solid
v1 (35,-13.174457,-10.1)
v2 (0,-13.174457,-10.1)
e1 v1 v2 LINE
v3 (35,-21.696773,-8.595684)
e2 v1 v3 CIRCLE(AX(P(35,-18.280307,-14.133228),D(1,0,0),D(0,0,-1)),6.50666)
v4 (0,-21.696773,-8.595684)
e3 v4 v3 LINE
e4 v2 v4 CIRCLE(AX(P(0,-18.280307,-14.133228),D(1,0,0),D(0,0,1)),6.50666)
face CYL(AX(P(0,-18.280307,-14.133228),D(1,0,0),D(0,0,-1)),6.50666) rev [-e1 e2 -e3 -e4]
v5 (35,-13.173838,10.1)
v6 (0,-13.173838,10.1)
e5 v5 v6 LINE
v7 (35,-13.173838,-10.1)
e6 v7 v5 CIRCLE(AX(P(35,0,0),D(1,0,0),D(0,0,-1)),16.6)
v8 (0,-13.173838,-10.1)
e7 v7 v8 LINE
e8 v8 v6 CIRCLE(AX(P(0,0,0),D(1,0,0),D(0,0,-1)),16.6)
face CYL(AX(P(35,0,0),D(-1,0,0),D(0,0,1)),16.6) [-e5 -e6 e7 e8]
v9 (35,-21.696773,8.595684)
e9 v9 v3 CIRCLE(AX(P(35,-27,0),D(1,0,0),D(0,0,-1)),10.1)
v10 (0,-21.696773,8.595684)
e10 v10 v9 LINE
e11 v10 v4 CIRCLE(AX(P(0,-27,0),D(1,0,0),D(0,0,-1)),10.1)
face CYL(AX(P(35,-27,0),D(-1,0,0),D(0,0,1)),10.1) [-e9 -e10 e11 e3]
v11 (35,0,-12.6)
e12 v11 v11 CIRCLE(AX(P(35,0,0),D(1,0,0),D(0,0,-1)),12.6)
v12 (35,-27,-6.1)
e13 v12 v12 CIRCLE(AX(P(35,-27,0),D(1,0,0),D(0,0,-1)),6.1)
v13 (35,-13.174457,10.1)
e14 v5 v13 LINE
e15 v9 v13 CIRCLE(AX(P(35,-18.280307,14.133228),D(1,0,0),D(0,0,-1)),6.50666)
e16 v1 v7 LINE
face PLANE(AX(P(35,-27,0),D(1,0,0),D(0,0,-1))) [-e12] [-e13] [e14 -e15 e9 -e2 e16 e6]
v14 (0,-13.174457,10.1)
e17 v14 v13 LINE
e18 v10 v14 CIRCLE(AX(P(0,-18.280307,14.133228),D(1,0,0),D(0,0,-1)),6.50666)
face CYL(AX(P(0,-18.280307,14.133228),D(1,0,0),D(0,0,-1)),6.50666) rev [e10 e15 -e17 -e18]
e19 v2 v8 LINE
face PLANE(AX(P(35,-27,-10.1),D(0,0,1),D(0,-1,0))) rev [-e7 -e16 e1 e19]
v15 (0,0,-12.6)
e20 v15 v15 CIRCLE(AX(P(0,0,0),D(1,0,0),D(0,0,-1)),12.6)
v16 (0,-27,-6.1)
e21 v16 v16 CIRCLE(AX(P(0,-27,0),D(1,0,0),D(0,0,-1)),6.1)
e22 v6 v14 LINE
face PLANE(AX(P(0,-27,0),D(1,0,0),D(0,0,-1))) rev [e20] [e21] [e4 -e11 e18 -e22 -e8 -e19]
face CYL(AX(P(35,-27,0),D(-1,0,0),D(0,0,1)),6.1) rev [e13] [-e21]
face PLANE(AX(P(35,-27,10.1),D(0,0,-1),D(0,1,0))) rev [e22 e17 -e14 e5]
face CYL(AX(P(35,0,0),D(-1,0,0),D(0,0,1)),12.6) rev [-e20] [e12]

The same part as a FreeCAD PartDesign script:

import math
import FreeCAD as App
import Part
import Sketcher
Q = App.Units.Quantity

doc = App.newDocument("Part")
params = doc.addObject("Spreadsheet::Sheet", "Params")
for row, (alias, value) in enumerate([
    ("sketch1_diameter", "12.2 mm"),
    ("sketch1_diameter2", "25.2 mm"),
    ("sketch1_radius", "10.1 mm"),
    ("sketch1_radius2", "16.6 mm"),
    ("pad1_length", "35 mm"),
    ("sketch2_radius", "10.1 mm"),
], start=1):
    params.set(f"A{row}", alias)
    params.set(f"B{row}", "=" + value)
    params.setAlias(f"B{row}", alias)

body = doc.addObject("PartDesign::Body", "Body")

# Sketch on YZ plane
sketch1 = body.newObject("Sketcher::SketchObject", "Sketch")
sketch1.AttachmentSupport = (doc.getObject("YZ_Plane"), [""])
sketch1.MapMode = "FlatFace"
sketch1.addGeometry([
    Part.LineSegment(App.Vector(-13, 10, 0), App.Vector(-27, 10, 0)),  # 0
    Part.ArcOfCircle(Part.Circle(App.Vector(-27, 0, 0), App.Vector(0, 0, 1), 10), math.radians(90), math.radians(270)),  # 1
    Part.LineSegment(App.Vector(-27, -10, 0), App.Vector(-13, -10, 0)),  # 2
    Part.ArcOfCircle(Part.Circle(App.Vector(0, 0, 0), App.Vector(0, 0, 1), 17), math.radians(-143), math.radians(143)),  # 3
    Part.Circle(App.Vector(-27, 0, 0), App.Vector(0, 0, 1), 6),  # 4
    Part.Circle(App.Vector(0, 0, 0), App.Vector(0, 0, 1), 13),  # 5
], False)
sketch1.addConstraint([
    Sketcher.Constraint("Tangent", 0, 2, 1, 1),
    Sketcher.Constraint("Tangent", 1, 2, 2, 1),
    Sketcher.Constraint("Coincident", 2, 2, 3, 1),
    Sketcher.Constraint("Coincident", 3, 2, 0, 1),
    Sketcher.Constraint("Horizontal", 0),
    Sketcher.Constraint("Horizontal", 2),
    Sketcher.Constraint("Coincident", 3, 3, -1, 1),
    Sketcher.Constraint("Coincident", 5, 3, -1, 1),
    Sketcher.Constraint("Coincident", 4, 3, 1, 3),
    Sketcher.Constraint("PointOnObject", 1, 3, -1),
    Sketcher.Constraint("Diameter", 4, Q("12.2 mm")),
    Sketcher.Constraint("Diameter", 5, Q("25.2 mm")),
    Sketcher.Constraint("Radius", 1, Q("10.1 mm")),
    Sketcher.Constraint("Radius", 3, Q("16.6 mm")),
    Sketcher.Constraint("DistanceX", 1, 3, -1, 1, Q("27 mm")),
])
sketch1.setExpression("Constraints[10]", "Params.sketch1_diameter")
sketch1.setExpression("Constraints[11]", "Params.sketch1_diameter2")
sketch1.setExpression("Constraints[12]", "Params.sketch1_radius")
sketch1.setExpression("Constraints[13]", "Params.sketch1_radius2")
pad1 = body.newObject("PartDesign::Pad", "Pad")
pad1.Profile = sketch1
pad1.setExpression("Length", "Params.pad1_length")

# Sketch on YZ plane
sketch2 = body.newObject("Sketcher::SketchObject", "Sketch001")
sketch2.AttachmentSupport = (doc.getObject("YZ_Plane"), [""])
sketch2.MapMode = "FlatFace"
sketch2.AttachmentOffset = App.Placement(App.Vector(0, 0, 35), App.Rotation())
sketch2.addGeometry([
    Part.LineSegment(App.Vector(-24.3, 16.6, 0), App.Vector(-27, 10.1, 0)),  # 0
    Part.ArcOfCircle(Part.Circle(App.Vector(-27, 0, 0), App.Vector(0, 0, 1), 10.1), math.radians(58), math.radians(90)),  # 1
    Part.ArcOfCircle(Part.Circle(App.Vector(-18.3, 14.1, 0), App.Vector(0, 0, 1), 6.5), math.radians(-122), math.radians(157)),  # 2
    Part.LineSegment(App.Vector(-27, -10.1, 0), App.Vector(-24.8, -14.4, 0)),  # 3
    Part.ArcOfCircle(Part.Circle(App.Vector(-18.3, -14.1, 0), App.Vector(0, 0, 1), 6.5), math.radians(-178), math.radians(122)),  # 4
    Part.ArcOfCircle(Part.Circle(App.Vector(-27, 0, 0), App.Vector(0, 0, 1), 10.1), math.radians(-90), math.radians(-58)),  # 5
], False)
sketch2.addConstraint([
    Sketcher.Constraint("Coincident", 0, 2, 1, 2),
    Sketcher.Constraint("Tangent", 1, 1, 2, 1),
    Sketcher.Constraint("Tangent", 2, 2, 0, 1),
    Sketcher.Constraint("Coincident", 3, 2, 4, 1),
    Sketcher.Constraint("Tangent", 4, 2, 5, 2),
    Sketcher.Constraint("Coincident", 5, 1, 3, 1),
    Sketcher.Constraint("Coincident", 5, 3, 1, 3),
    Sketcher.Constraint("Equal", 2, 4),
    Sketcher.Constraint("Equal", 1, 5),
    Sketcher.Constraint("Symmetric", 2, 3, 4, 3, -1),
    Sketcher.Constraint("Vertical", 5, 3, 0, 2),
    Sketcher.Constraint("Vertical", 0, 2, 5, 1),
    Sketcher.Constraint("Radius", 1, Q("10.1 mm")),
    Sketcher.Constraint("DistanceX", 1, 3, -1, 1, Q("27 mm")),
    Sketcher.Constraint("Radius", 2, Q("6.50666 mm")),
    Sketcher.Constraint("DistanceY", 1, 1, 2, 2, Q("8.032499 mm")),
    Sketcher.Constraint("Distance", 3, Q("4.834459 mm")),
])
sketch2.setExpression("Constraints[12]", "Params.sketch2_radius")
pocket1 = body.newObject("PartDesign::Pocket", "Pocket")
pocket1.Profile = sketch2
pocket1.Type = "ThroughAll"
pocket1.Midplane = True

doc.recompute()
